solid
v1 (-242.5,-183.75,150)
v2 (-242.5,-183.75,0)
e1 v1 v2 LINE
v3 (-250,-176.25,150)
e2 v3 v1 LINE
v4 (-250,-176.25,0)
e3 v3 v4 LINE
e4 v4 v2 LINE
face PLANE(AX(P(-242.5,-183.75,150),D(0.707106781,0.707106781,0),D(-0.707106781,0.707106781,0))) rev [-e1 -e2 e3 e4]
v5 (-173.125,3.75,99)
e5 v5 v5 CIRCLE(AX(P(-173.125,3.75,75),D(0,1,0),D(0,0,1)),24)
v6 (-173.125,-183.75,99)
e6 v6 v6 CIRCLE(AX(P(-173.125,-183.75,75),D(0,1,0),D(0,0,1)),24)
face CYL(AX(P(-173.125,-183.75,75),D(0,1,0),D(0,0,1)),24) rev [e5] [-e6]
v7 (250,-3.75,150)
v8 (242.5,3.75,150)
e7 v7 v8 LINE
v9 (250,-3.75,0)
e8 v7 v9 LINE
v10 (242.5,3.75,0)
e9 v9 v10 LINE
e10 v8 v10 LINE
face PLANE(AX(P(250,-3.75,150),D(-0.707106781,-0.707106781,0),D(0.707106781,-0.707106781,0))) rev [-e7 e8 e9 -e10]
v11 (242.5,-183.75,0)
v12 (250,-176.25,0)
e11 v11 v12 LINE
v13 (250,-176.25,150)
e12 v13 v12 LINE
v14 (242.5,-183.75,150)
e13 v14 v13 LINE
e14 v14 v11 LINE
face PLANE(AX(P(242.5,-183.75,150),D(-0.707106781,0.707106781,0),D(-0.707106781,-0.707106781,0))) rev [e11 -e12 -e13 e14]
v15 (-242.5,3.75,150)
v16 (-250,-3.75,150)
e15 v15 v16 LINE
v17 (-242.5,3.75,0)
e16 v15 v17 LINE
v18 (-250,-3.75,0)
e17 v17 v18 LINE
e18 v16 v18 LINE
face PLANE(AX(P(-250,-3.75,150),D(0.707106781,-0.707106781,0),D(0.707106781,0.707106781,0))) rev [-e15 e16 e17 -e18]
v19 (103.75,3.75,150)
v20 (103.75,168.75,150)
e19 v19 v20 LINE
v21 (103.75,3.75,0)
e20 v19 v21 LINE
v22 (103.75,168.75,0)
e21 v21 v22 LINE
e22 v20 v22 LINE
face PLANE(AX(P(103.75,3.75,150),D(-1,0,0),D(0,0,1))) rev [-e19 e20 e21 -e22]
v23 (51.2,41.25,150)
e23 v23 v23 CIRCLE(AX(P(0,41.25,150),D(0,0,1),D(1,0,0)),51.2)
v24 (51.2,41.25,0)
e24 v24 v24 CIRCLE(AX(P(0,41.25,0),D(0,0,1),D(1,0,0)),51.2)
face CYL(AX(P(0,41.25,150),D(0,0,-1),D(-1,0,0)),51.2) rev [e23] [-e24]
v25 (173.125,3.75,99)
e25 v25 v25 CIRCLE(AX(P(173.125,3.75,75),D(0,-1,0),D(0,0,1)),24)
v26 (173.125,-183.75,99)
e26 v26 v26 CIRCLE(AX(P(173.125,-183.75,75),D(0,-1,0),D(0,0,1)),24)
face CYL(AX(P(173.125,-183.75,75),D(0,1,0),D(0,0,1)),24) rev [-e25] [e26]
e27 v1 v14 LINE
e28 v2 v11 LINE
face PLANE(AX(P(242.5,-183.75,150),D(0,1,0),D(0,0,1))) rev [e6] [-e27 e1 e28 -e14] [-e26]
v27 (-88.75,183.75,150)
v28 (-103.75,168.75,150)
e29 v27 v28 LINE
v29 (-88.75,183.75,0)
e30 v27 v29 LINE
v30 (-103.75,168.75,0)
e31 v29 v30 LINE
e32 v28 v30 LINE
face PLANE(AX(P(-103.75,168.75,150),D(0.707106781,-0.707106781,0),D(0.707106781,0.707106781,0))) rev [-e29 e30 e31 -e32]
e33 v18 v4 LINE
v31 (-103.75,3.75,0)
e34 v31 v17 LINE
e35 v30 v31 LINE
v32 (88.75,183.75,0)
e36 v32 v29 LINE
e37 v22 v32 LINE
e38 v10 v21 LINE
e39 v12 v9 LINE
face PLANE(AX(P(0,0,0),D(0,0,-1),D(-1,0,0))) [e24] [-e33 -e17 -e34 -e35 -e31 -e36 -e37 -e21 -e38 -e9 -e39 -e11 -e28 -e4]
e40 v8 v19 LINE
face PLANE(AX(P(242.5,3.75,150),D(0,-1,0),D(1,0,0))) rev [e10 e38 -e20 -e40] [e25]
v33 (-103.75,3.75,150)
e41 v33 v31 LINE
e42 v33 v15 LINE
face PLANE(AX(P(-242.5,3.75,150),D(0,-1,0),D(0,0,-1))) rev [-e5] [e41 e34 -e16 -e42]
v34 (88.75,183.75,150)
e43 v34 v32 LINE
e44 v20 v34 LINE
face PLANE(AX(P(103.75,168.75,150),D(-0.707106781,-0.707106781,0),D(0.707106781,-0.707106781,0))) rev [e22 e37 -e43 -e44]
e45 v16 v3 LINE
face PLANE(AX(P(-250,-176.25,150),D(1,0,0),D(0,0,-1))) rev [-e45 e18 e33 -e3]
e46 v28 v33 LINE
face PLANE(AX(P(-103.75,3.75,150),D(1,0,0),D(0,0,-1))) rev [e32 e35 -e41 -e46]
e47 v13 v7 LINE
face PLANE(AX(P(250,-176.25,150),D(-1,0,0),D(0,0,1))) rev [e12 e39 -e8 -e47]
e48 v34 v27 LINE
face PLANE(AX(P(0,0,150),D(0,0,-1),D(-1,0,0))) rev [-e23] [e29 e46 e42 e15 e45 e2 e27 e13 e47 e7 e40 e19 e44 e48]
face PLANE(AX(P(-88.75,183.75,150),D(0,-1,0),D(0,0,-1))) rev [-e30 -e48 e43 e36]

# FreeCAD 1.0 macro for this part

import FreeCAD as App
import Part
import Sketcher
from FreeCAD import Vector
Q = App.Units.Quantity


def add_polygon(sketch, points):
    """Adds a closed chain of lines whose ends are joined by coincident constraints."""
    first, n = sketch.GeometryCount, len(points)
    for a, b in zip(points, points[1:] + points[:1]):
        sketch.addGeometry(Part.LineSegment(App.Vector(*a, 0), App.Vector(*b, 0)), False)
    for i in range(n):
        sketch.addConstraint(Sketcher.Constraint("Coincident", first + i, 2, first + (i + 1) % n, 1))

doc = App.newDocument("Part")
body = doc.addObject("PartDesign::Body", "Body")

sketch1 = body.newObject("Sketcher::SketchObject", "Sketch")
sketch1.AttachmentSupport = (doc.getObject("XY_Plane"), [""])
sketch1.MapMode = "FlatFace"
add_polygon(sketch1, [(-242, 4), (-250, -4), (-250, -176), (-242, -184), (242, -184), (250, -176), (250, -4), (242, 4), (104, 4), (104, 169), (89, 184), (-89, 184), (-104, 169), (-104, 4)])
sketch1.addGeometry(Part.Circle(Vector(0, 41, 0), Vector(0, 0, 1), 51), False)
sketch1.addConstraint([
    Sketcher.Constraint("Vertical", 1),
    Sketcher.Constraint("Horizontal", 3),
    Sketcher.Constraint("Vertical", 5),
    Sketcher.Constraint("Horizontal", 7),
    Sketcher.Constraint("Vertical", 8),
    Sketcher.Constraint("Horizontal", 10),
    Sketcher.Constraint("Vertical", 12),
    Sketcher.Constraint("Horizontal", 13),
    Sketcher.Constraint("Symmetric", 1, 2, 4, 2, -2),
    Sketcher.Constraint("Symmetric", 8, 2, 11, 2, -2),
    Sketcher.Constraint("Symmetric", 6, 2, 13, 2, -2),
    Sketcher.Constraint("PointOnObject", 14, 3, -2),
    Sketcher.Constraint("Perpendicular", 0, 2),
    Sketcher.Constraint("Perpendicular", 2, 4),
    Sketcher.Constraint("Perpendicular", 4, 6),
    Sketcher.Constraint("Parallel", 6, 9),
    Sketcher.Constraint("Perpendicular", 9, 11),
    Sketcher.Constraint("Horizontal", 0, 2, 5, 2),
    Sketcher.Constraint("Vertical", 3, 2, 6, 2),
    Sketcher.Constraint("Diameter", 14, Q("102.4 mm")),
    Sketcher.Constraint("DistanceX", 3, 1, 3, 2, Q("485 mm")),
    Sketcher.Constraint("DistanceY", 8, 1, 8, 2, Q("165 mm")),
    Sketcher.Constraint("DistanceX", 10, 2, 10, 1, Q("177.5 mm")),
    Sketcher.Constraint("DistanceY", 1, 2, 1, 1, Q("172.5 mm")),
    Sketcher.Constraint("DistanceX", 0, 2, -1, 1, Q("250 mm")),
    Sketcher.Constraint("DistanceY", 0, 2, 14, 3, Q("45 mm")),
    Sketcher.Constraint("DistanceX", 9, 2, 8, 2, Q("15 mm")),
    Sketcher.Constraint("DistanceY", -1, 1, 14, 3, Q("41.25 mm")),
])
pad1 = body.newObject("PartDesign::Pad", "Pad")
pad1.Profile = sketch1
pad1.Length = 150

sketch2 = body.newObject("Sketcher::SketchObject", "Sketch001")
sketch2.AttachmentSupport = (doc.getObject("XZ_Plane"), [""])
sketch2.MapMode = "FlatFace"
sketch2.AttachmentOffset = App.Placement(Vector(0, 0, -3.75), App.Rotation())
sketch2.addGeometry(Part.Circle(Vector(-173, 75, 0), Vector(0, 0, 1), 24), False)
sketch2.addConstraint([
    Sketcher.Constraint("Diameter", 0, Q("48 mm")),
    Sketcher.Constraint("DistanceY", -1, 1, 0, 3, Q("75 mm")),
    Sketcher.Constraint("DistanceX", 0, 3, -1, 1, Q("173.125 mm")),
])
pocket1 = body.newObject("PartDesign::Pocket", "Pocket")
pocket1.Profile = sketch2
pocket1.Type = "ThroughAll"
pocket1.Reversed = True
doc.recompute()

mirrored = body.newObject("PartDesign::Mirrored", "Mirrored")
mirrored.Originals = [pocket1]
mirrored.MirrorPlane = (doc.getObject("YZ_Plane"), [""])
body.Tip = mirrored

doc.recompute()
